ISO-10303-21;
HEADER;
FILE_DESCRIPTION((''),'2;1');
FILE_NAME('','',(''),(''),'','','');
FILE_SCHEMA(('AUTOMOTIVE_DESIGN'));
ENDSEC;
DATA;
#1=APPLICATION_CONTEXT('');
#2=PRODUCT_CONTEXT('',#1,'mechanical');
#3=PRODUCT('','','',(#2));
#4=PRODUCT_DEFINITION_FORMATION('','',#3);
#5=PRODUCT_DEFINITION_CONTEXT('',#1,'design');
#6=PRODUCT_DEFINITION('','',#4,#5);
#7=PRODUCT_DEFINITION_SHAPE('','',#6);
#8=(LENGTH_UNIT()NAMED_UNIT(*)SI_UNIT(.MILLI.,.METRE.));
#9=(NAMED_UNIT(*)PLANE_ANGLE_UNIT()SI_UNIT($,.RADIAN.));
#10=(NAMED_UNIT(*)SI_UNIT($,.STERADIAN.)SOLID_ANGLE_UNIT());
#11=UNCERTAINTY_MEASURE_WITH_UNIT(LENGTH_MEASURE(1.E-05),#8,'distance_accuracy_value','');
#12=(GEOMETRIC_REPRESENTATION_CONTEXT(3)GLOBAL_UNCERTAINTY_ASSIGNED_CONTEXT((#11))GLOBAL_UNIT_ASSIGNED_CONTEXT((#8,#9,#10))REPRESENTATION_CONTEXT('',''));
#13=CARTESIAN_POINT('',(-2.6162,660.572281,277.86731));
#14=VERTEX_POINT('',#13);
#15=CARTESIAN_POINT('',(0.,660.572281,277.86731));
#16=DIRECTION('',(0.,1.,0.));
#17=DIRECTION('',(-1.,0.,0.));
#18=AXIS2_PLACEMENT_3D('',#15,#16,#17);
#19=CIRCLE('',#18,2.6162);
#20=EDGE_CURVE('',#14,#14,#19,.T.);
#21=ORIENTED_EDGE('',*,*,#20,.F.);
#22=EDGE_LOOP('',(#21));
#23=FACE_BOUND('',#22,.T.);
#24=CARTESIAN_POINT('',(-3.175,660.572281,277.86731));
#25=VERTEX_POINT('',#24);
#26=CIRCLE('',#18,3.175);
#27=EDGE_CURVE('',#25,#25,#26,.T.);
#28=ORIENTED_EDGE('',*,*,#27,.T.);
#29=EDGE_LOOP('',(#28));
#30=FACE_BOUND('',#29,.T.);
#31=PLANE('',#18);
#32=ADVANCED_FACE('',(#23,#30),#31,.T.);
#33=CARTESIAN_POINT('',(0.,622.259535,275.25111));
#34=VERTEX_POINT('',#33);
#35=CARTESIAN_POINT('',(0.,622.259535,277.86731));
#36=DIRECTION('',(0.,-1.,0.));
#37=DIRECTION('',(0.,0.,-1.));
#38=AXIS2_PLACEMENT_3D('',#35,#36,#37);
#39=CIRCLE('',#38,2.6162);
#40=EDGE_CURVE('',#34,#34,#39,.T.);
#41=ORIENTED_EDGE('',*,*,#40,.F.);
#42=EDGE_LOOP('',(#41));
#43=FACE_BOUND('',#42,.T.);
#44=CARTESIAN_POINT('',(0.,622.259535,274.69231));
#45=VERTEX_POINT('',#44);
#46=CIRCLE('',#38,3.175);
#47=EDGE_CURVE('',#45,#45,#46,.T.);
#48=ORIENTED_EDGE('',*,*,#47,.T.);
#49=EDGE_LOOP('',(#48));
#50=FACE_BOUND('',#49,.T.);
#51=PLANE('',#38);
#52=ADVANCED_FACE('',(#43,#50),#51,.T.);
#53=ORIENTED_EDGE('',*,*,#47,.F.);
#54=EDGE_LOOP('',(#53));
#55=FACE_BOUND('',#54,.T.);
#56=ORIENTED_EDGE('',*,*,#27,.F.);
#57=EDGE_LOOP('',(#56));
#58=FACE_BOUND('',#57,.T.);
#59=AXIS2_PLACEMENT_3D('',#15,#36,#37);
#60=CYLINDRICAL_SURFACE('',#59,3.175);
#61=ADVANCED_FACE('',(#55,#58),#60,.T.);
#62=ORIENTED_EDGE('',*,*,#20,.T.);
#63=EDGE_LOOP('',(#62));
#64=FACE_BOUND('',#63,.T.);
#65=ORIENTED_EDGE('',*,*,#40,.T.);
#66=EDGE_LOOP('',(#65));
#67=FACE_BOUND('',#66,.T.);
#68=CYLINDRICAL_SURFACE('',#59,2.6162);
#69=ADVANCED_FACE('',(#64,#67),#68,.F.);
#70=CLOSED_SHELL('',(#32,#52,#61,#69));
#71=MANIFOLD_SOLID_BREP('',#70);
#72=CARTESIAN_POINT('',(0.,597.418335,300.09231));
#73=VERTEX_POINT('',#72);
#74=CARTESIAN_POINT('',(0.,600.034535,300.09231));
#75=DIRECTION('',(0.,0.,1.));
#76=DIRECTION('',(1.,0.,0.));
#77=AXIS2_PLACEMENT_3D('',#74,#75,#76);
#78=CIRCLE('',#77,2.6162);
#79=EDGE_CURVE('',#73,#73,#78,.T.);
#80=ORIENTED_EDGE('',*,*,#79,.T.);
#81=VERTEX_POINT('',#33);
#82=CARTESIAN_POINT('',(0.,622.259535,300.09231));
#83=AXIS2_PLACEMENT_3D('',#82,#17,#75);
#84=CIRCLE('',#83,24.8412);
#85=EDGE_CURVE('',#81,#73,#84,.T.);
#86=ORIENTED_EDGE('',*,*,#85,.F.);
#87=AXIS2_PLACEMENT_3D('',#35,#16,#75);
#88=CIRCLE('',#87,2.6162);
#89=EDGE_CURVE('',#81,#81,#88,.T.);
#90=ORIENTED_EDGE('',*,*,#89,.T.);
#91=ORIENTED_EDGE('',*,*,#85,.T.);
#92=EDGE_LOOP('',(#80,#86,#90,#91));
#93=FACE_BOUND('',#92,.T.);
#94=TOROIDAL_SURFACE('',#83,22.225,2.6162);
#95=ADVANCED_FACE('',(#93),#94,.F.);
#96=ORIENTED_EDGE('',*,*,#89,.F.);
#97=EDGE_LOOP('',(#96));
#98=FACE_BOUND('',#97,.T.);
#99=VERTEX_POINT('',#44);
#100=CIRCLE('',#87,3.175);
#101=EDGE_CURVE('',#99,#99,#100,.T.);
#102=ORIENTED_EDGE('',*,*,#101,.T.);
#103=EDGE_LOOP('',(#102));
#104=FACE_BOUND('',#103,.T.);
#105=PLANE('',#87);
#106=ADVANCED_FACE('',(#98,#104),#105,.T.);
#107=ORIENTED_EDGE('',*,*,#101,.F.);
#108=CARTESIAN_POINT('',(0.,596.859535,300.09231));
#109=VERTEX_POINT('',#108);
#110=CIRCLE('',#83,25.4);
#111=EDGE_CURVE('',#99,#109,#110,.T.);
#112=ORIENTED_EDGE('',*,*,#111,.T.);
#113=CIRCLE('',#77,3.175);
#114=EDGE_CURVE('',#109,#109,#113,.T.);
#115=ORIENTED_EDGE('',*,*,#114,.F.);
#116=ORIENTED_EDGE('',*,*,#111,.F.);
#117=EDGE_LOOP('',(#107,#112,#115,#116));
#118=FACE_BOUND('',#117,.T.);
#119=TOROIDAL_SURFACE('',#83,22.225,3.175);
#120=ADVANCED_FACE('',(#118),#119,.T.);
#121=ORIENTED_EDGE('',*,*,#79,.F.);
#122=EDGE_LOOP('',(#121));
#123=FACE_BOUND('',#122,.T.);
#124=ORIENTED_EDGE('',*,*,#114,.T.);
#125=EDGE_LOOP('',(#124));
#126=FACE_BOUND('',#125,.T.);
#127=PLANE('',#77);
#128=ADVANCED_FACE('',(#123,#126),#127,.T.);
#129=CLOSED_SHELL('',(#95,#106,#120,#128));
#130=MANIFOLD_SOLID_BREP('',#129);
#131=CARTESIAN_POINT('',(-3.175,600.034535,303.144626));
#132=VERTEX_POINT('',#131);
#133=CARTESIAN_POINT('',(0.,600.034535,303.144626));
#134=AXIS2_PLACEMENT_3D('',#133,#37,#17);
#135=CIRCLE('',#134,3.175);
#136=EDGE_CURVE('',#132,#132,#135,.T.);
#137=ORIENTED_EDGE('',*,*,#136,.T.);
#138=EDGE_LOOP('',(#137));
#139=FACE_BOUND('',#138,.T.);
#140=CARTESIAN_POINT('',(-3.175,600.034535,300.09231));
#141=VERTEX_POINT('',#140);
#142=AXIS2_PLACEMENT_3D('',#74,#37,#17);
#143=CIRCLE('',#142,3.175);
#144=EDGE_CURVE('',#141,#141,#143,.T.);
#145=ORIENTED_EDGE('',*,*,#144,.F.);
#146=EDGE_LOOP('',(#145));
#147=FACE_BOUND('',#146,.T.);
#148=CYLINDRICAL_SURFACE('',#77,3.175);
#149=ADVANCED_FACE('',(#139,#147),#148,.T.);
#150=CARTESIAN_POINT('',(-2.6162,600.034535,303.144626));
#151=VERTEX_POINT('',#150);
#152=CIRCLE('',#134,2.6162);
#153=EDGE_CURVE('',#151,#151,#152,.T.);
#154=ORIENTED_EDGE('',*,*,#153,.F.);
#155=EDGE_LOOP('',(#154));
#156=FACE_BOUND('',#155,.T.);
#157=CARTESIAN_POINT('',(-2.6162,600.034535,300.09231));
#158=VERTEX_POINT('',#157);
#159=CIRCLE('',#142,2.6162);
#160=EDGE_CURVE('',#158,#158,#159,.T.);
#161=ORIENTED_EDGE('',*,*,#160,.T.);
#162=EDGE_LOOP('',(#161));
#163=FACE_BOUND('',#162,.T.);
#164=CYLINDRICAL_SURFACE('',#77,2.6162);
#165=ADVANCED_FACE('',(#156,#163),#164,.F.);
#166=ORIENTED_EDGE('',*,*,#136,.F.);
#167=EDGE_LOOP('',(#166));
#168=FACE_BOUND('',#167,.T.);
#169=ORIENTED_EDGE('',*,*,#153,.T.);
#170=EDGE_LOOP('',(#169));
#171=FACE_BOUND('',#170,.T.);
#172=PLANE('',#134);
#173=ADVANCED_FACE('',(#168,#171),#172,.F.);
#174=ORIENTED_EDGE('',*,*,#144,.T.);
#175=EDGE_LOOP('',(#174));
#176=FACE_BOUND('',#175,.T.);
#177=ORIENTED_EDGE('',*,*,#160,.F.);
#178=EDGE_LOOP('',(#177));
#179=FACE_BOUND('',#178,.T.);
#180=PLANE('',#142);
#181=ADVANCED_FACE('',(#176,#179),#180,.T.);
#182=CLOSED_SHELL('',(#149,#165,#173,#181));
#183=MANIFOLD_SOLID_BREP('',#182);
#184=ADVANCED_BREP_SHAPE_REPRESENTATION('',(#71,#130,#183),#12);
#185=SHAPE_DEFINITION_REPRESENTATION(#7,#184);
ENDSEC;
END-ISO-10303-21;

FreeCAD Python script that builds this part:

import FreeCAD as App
import Part
import Sketcher
from FreeCAD import Vector
Q = App.Units.Quantity

doc = App.newDocument("Part")
body = doc.addObject("PartDesign::Body", "Body")

sketch1 = body.newObject("Sketcher::SketchObject", "Sketch")
sketch1.AttachmentSupport = (doc.getObject("XY_Plane"), [""])
sketch1.MapMode = "FlatFace"
sketch1.AttachmentOffset = App.Placement(Vector(0, 0, 303.144626), App.Rotation())
sketch1.addGeometry(Part.Circle(Vector(0, 600.034535, 0), Vector(0, 0, 1), 3.175), False)
sketch1.addGeometry(Part.Circle(Vector(0, 600.034535, 0), Vector(0, 0, 1), 2.6162), False)
sketch1.addConstraint(Sketcher.Constraint("Coincident", 1, 3, 0, 3))
sketch1.addConstraint(Sketcher.Constraint("PointOnObject", 0, 3, -2))
sketch1.addConstraint(Sketcher.Constraint("Diameter", 0, Q("0.25 in")))
sketch1.addConstraint(Sketcher.Constraint("Diameter", 1, Q("0.206 in")))
sketch1.addConstraint(Sketcher.Constraint("DistanceY", -1, 1, 0, 3, 600.034535))
pad1 = body.newObject("PartDesign::Pad", "Pad")
pad1.Profile = sketch1
pad1.Length = 3.052316
pad1.Reversed = True
body2 = doc.addObject("PartDesign::Body", "Body001")

sketch2 = body2.newObject("Sketcher::SketchObject", "Sketch001")
sketch2.AttachmentSupport = (doc.getObject("XY_Plane001"), [""])
sketch2.MapMode = "FlatFace"
sketch2.AttachmentOffset = App.Placement(Vector(0, 0, 300.09231), App.Rotation())
sketch2.addGeometry(Part.Circle(Vector(0, 600.034535, 0), Vector(0, 0, 1), 3.175), False)
sketch2.addGeometry(Part.Circle(Vector(0, 600.034535, 0), Vector(0, 0, 1), 2.6162), False)
sketch2.addGeometry(Part.LineSegment(Vector(0, 622.259535, 0), Vector(10, 622.259535, 0)), True)
sketch2.addConstraint(Sketcher.Constraint("Horizontal", 2))
sketch2.addConstraint(Sketcher.Constraint("Coincident", 1, 3, 0, 3))
sketch2.addConstraint(Sketcher.Constraint("PointOnObject", 0, 3, -2))
sketch2.addConstraint(Sketcher.Constraint("PointOnObject", 2, 1, -2))
sketch2.addConstraint(Sketcher.Constraint("Diameter", 0, Q("0.25 in")))
sketch2.addConstraint(Sketcher.Constraint("Diameter", 1, Q("0.206 in")))
sketch2.addConstraint(Sketcher.Constraint("DistanceY", 0, 3, 2, 1, Q("0.875 in")))
sketch2.addConstraint(Sketcher.Constraint("DistanceX", 2, 1, 2, 2, 10.0))
sketch2.addConstraint(Sketcher.Constraint("DistanceY", -1, 1, 0, 3, 600.034535))
revolution = body2.newObject("PartDesign::Revolution", "Revolution")
revolution.Profile = sketch2
revolution.ReferenceAxis = (sketch2, ["Axis0"])
revolution.Angle = 90
body3 = doc.addObject("PartDesign::Body", "Body002")

sketch3 = body3.newObject("Sketcher::SketchObject", "Sketch002")
sketch3.AttachmentSupport = (doc.getObject("XZ_Plane002"), [""])
sketch3.MapMode = "FlatFace"
sketch3.AttachmentOffset = App.Placement(Vector(0, 0, -622.259535), App.Rotation())
sketch3.addGeometry(Part.Circle(Vector(0, 277.86731, 0), Vector(0, 0, 1), 3.175), False)
sketch3.addGeometry(Part.Circle(Vector(0, 277.86731, 0), Vector(0, 0, 1), 2.6162), False)
sketch3.addConstraint(Sketcher.Constraint("Coincident", 1, 3, 0, 3))
sketch3.addConstraint(Sketcher.Constraint("PointOnObject", 0, 3, -2))
sketch3.addConstraint(Sketcher.Constraint("Diameter", 0, Q("0.25 in")))
sketch3.addConstraint(Sketcher.Constraint("Diameter", 1, Q("0.206 in")))
sketch3.addConstraint(Sketcher.Constraint("DistanceY", -1, 1, 0, 3, 277.86731))
pad2 = body3.newObject("PartDesign::Pad", "Pad001")
pad2.Profile = sketch3
pad2.Length = 38.312746
pad2.Reversed = True

doc.recompute()
